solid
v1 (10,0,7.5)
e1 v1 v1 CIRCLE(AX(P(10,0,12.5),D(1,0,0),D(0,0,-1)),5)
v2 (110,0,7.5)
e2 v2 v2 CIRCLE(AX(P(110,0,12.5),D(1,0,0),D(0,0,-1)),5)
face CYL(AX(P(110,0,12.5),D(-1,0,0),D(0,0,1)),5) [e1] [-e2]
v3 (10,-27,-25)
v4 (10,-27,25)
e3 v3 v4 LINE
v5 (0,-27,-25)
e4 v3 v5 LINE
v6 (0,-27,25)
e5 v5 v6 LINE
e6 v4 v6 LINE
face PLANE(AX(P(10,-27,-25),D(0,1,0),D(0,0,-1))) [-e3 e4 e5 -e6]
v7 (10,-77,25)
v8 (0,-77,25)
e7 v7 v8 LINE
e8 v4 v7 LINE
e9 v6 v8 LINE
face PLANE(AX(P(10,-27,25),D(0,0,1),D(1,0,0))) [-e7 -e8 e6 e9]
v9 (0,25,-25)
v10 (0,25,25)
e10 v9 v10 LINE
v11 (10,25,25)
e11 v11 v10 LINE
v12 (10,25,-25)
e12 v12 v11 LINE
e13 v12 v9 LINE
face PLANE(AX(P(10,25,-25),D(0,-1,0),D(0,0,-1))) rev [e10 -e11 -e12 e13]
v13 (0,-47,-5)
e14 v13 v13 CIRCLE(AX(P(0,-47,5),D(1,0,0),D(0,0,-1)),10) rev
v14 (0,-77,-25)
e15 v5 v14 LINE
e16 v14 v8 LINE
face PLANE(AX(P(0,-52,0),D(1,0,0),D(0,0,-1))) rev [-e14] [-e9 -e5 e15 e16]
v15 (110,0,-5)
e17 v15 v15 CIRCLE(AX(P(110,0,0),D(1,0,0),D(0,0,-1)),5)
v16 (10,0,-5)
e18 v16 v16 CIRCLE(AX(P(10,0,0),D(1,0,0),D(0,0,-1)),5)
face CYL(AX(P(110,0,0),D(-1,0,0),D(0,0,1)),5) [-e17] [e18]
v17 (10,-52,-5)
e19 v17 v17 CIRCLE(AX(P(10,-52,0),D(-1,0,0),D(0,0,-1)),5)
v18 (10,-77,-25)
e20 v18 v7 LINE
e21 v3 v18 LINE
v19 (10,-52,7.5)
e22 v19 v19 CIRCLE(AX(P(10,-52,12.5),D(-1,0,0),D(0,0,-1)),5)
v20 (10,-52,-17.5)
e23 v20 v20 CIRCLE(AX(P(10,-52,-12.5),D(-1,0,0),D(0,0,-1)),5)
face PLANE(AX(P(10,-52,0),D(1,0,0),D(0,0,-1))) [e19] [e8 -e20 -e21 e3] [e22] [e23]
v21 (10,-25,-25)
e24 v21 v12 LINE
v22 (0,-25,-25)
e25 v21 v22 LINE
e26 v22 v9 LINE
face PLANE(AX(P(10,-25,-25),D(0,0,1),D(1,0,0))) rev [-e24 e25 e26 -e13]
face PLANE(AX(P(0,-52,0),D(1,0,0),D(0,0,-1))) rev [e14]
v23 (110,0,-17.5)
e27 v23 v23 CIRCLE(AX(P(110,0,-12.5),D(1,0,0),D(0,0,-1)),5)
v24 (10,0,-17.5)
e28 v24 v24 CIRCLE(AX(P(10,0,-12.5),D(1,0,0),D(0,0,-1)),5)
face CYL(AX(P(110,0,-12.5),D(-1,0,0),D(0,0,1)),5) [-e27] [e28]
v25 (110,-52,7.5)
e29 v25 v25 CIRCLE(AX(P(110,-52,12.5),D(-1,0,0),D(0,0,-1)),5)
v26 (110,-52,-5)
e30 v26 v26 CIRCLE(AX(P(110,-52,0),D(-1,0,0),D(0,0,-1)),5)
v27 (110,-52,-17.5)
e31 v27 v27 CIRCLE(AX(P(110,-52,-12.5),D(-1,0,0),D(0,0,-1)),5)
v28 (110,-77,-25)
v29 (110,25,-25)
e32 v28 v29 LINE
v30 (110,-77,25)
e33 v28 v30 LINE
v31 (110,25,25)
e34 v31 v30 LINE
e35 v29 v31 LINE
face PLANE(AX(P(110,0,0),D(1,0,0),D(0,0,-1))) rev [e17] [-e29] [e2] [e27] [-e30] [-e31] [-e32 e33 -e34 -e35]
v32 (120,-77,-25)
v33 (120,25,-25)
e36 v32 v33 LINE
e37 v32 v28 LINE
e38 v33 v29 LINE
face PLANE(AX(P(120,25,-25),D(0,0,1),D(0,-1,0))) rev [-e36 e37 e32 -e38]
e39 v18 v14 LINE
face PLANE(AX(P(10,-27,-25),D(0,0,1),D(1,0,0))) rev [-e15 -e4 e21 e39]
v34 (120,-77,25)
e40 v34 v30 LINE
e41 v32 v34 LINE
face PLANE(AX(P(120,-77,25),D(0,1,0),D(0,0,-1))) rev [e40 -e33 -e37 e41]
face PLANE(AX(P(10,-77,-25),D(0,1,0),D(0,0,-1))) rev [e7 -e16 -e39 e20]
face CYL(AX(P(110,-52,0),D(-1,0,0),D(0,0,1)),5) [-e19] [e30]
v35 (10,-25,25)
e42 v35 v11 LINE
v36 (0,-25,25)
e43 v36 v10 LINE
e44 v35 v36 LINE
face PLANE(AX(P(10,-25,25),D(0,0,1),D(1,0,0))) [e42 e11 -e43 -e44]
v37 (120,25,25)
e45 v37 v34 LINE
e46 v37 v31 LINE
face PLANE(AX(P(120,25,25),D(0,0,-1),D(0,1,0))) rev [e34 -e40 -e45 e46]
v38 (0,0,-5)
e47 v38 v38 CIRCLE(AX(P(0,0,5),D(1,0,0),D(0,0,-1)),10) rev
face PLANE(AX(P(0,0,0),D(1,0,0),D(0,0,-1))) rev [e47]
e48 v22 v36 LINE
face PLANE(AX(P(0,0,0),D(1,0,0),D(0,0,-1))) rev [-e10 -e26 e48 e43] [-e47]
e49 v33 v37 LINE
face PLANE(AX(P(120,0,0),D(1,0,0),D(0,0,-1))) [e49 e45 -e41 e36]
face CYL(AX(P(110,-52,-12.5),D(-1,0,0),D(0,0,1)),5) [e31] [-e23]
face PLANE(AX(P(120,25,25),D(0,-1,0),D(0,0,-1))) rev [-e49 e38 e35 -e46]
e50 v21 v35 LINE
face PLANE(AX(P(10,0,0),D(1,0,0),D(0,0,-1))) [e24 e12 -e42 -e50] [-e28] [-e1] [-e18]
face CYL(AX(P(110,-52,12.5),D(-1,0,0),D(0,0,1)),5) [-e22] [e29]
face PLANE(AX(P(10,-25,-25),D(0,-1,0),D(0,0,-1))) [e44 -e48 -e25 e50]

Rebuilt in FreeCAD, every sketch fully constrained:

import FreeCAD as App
import Part
import Sketcher
Q = App.Units.Quantity

doc = App.newDocument("Part")
params = doc.addObject("Spreadsheet::Sheet", "Params")
for row, (alias, value) in enumerate([
    ("sketch1_width", "50 mm"),
    ("pad1_length", "10 mm"),
    ("sketch2_diameter", "10 mm"),
    ("pad2_length", "100 mm"),
    ("linearpattern_pitch", "12.5 mm"),
    ("linearpattern2_pitch", "12.5 mm"),
    ("sketch3_width", "51 mm"),
    ("sketch3_height", "50 mm"),
    ("pad3_length", "10 mm"),
], start=1):
    params.set(f"A{row}", alias)
    params.set(f"B{row}", "=" + value)
    params.setAlias(f"B{row}", alias)

body = doc.addObject("PartDesign::Body", "Body")

# Sketch on YZ plane
sketch1 = body.newObject("Sketcher::SketchObject", "Sketch")
sketch1.AttachmentSupport = (doc.getObject("YZ_Plane"), [""])
sketch1.MapMode = "FlatFace"
sketch1.addGeometry(Part.LineSegment(App.Vector(25, 25, 0), App.Vector(-25, 25, 0)), False)
sketch1.addGeometry(Part.LineSegment(App.Vector(-25, 25, 0), App.Vector(-25, -25, 0)), False)
sketch1.addGeometry(Part.LineSegment(App.Vector(-25, -25, 0), App.Vector(25, -25, 0)), False)
sketch1.addGeometry(Part.LineSegment(App.Vector(25, -25, 0), App.Vector(25, 25, 0)), False)
sketch1.addConstraint(Sketcher.Constraint("Coincident", 0, 2, 1, 1))
sketch1.addConstraint(Sketcher.Constraint("Coincident", 1, 2, 2, 1))
sketch1.addConstraint(Sketcher.Constraint("Coincident", 2, 2, 3, 1))
sketch1.addConstraint(Sketcher.Constraint("Coincident", 3, 2, 0, 1))
sketch1.addConstraint(Sketcher.Constraint("Horizontal", 0))
sketch1.addConstraint(Sketcher.Constraint("Vertical", 1))
sketch1.addConstraint(Sketcher.Constraint("Horizontal", 2))
sketch1.addConstraint(Sketcher.Constraint("Vertical", 3))
sketch1.addConstraint(Sketcher.Constraint("Symmetric", 0, 2, 2, 2, -1, 1))
sketch1.addConstraint(Sketcher.Constraint("Equal", 2, 1))
sketch1.addConstraint(Sketcher.Constraint("DistanceX", 0, 2, 0, 1, Q("50 mm")))
sketch1.setExpression("Constraints[10]", "Params.sketch1_width")
pad1 = body.newObject("PartDesign::Pad", "Pad")
pad1.Profile = sketch1
pad1.setExpression("Length", "Params.pad1_length")

# Sketch on YZ plane
sketch2 = body.newObject("Sketcher::SketchObject", "Sketch001")
sketch2.AttachmentSupport = (doc.getObject("YZ_Plane"), [""])
sketch2.MapMode = "FlatFace"
sketch2.AttachmentOffset = App.Placement(App.Vector(0, 0, 10), App.Rotation())
sketch2.addGeometry(Part.Circle(App.Vector(0, 0, 0), App.Vector(0, 0, 1), 5), False)
sketch2.addConstraint(Sketcher.Constraint("Coincident", 0, 3, -1, 1))
sketch2.addConstraint(Sketcher.Constraint("Diameter", 0, Q("10 mm")))
sketch2.setExpression("Constraints[1]", "Params.sketch2_diameter")
pad2 = body.newObject("PartDesign::Pad", "Pad001")
pad2.Profile = sketch2
pad2.setExpression("Length", "Params.pad2_length")
doc.recompute()

linearpattern = body.newObject("PartDesign::LinearPattern", "LinearPattern")
linearpattern.Originals = [pad2]
linearpattern.Direction = (doc.getObject("Z_Axis"), [""])
linearpattern.Mode = "offset"
linearpattern.setExpression("Offset", "Params.linearpattern_pitch")
linearpattern.Occurrences = 2
linearpattern.Reversed = True
body.Tip = linearpattern
doc.recompute()

linearpattern2 = body.newObject("PartDesign::LinearPattern", "LinearPattern001")
linearpattern2.Originals = [pad2]
linearpattern2.Direction = (doc.getObject("Z_Axis"), [""])
linearpattern2.Mode = "offset"
linearpattern2.setExpression("Offset", "Params.linearpattern2_pitch")
linearpattern2.Occurrences = 2
body.Tip = linearpattern2

# Sketch on YZ plane
sketch3 = body.newObject("Sketcher::SketchObject", "Sketch002")
sketch3.AttachmentSupport = (doc.getObject("YZ_Plane"), [""])
sketch3.MapMode = "FlatFace"
sketch3.AttachmentOffset = App.Placement(App.Vector(0, 0, 110), App.Rotation())
sketch3.addGeometry(Part.LineSegment(App.Vector(25, 25, 0), App.Vector(-26, 25, 0)), False)
sketch3.addGeometry(Part.LineSegment(App.Vector(-26, 25, 0), App.Vector(-26, -25, 0)), False)
sketch3.addGeometry(Part.LineSegment(App.Vector(-26, -25, 0), App.Vector(25, -25, 0)), False)
sketch3.addGeometry(Part.LineSegment(App.Vector(25, -25, 0), App.Vector(25, 25, 0)), False)
sketch3.addConstraint(Sketcher.Constraint("Coincident", 0, 2, 1, 1))
sketch3.addConstraint(Sketcher.Constraint("Coincident", 1, 2, 2, 1))
sketch3.addConstraint(Sketcher.Constraint("Coincident", 2, 2, 3, 1))
sketch3.addConstraint(Sketcher.Constraint("Coincident", 3, 2, 0, 1))
sketch3.addConstraint(Sketcher.Constraint("Horizontal", 0))
sketch3.addConstraint(Sketcher.Constraint("Vertical", 1))
sketch3.addConstraint(Sketcher.Constraint("Horizontal", 2))
sketch3.addConstraint(Sketcher.Constraint("Vertical", 3))
sketch3.addConstraint(Sketcher.Constraint("DistanceX", 0, 2, 0, 1, Q("51 mm")))
sketch3.addConstraint(Sketcher.Constraint("DistanceY", 1, 2, 1, 1, Q("50 mm")))
sketch3.addConstraint(Sketcher.Constraint("DistanceX", 0, 2, -1, 1, Q("26 mm")))
sketch3.addConstraint(Sketcher.Constraint("DistanceY", -1, 1, 0, 2, Q("25 mm")))
sketch3.setExpression("Constraints[8]", "Params.sketch3_width")
sketch3.setExpression("Constraints[9]", "Params.sketch3_height")
pad3 = body.newObject("PartDesign::Pad", "Pad002")
pad3.Profile = sketch3
pad3.setExpression("Length", "Params.pad3_length")
body2 = doc.addObject("PartDesign::Body", "Body001")
doc.recompute()

body2.BaseFeature = body
doc.recompute()

mirroring = doc.addObject("Part::Mirroring", "Mirroring")
mirroring.Source = body
mirroring.Base = App.Vector(0, -26, 0)
mirroring.Normal = App.Vector(0, -1, 0)
body3 = doc.addObject("PartDesign::Body", "Body002")
body3.BaseFeature = mirroring
boolean = body2.newObject("PartDesign::Boolean", "Boolean")
boolean.Type = "Fuse"
boolean.addObjects([body3])
doc.recompute()
mirroring.Visibility = False

doc.recompute()
